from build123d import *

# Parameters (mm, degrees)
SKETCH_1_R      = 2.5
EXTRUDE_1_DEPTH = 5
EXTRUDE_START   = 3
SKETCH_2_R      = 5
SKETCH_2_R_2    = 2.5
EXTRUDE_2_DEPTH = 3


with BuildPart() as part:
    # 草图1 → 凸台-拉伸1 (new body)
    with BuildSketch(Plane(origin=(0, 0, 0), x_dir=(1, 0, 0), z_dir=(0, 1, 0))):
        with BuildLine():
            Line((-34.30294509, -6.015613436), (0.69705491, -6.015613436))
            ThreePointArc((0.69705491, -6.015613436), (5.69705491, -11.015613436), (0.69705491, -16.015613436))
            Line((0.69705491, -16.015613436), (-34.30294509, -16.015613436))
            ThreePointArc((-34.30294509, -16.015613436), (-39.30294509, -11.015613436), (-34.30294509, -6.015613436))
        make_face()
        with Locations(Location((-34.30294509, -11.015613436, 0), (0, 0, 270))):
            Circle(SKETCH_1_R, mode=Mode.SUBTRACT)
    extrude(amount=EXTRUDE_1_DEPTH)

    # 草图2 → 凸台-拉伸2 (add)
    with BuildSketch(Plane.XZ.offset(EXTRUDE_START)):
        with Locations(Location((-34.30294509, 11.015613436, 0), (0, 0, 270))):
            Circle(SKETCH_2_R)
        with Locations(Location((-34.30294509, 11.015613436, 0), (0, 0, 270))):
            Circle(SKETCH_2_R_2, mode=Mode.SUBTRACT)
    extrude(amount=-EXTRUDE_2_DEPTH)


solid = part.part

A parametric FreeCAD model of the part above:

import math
import FreeCAD as App
import Part
import Sketcher
from FreeCAD import Vector

doc = App.newDocument("Part")
body = doc.addObject("PartDesign::Body", "Body")

# Sketch on XZ plane
sketch1 = body.newObject("Sketcher::SketchObject", "Sketch")
sketch1.AttachmentSupport = (doc.getObject("XZ_Plane"), [""])
sketch1.MapMode = "FlatFace"
sketch1.addGeometry(Part.LineSegment(Vector(0.7, 6, 0), Vector(-34.3, 6, 0)), False)
sketch1.addGeometry(Part.ArcOfCircle(Part.Circle(Vector(-34.3, 11, 0), Vector(0, 0, 1), 5), math.radians(90), math.radians(270)), False)
sketch1.addGeometry(Part.LineSegment(Vector(-34.3, 16, 0), Vector(0.7, 16, 0)), False)
sketch1.addGeometry(Part.ArcOfCircle(Part.Circle(Vector(0.7, 11, 0), Vector(0, 0, 1), 5), math.radians(-90), math.radians(90)), False)
sketch1.addGeometry(Part.Circle(Vector(-34.3, 11, 0), Vector(0, 0, 1), 2.5), False)
sketch1.addConstraint(Sketcher.Constraint("Tangent", 0, 2, 1, 2))
sketch1.addConstraint(Sketcher.Constraint("Tangent", 1, 1, 2, 1))
sketch1.addConstraint(Sketcher.Constraint("Tangent", 2, 2, 3, 2))
sketch1.addConstraint(Sketcher.Constraint("Tangent", 3, 1, 0, 1))
sketch1.addConstraint(Sketcher.Constraint("Horizontal", 0))
sketch1.addConstraint(Sketcher.Constraint("Horizontal", 2))
sketch1.addConstraint(Sketcher.Constraint("Coincident", 4, 3, 1, 3))
sketch1.addConstraint(Sketcher.Constraint("Diameter", 4, 5.0))
sketch1.addConstraint(Sketcher.Constraint("Radius", 1, 5.0))
sketch1.addConstraint(Sketcher.Constraint("DistanceX", 0, 2, 0, 1, 35.0))
sketch1.addConstraint(Sketcher.Constraint("DistanceX", 1, 3, -1, 1, 34.302945))
sketch1.addConstraint(Sketcher.Constraint("DistanceY", -1, 1, 1, 3, 11.015613))
pad1 = body.newObject("PartDesign::Pad", "Pad")
pad1.Profile = sketch1
pad1.Length = 5
pad1.Reversed = True

# Sketch on XZ plane
sketch2 = body.newObject("Sketcher::SketchObject", "Sketch001")
sketch2.AttachmentSupport = (doc.getObject("XZ_Plane"), [""])
sketch2.MapMode = "FlatFace"
sketch2.AttachmentOffset = App.Placement(Vector(0, 0, 3), App.Rotation())
sketch2.addGeometry(Part.Circle(Vector(-34.3, 11, 0), Vector(0, 0, 1), 5), False)
sketch2.addGeometry(Part.Circle(Vector(-34.3, 11, 0), Vector(0, 0, 1), 2.5), False)
sketch2.addConstraint(Sketcher.Constraint("Coincident", 1, 3, 0, 3))
sketch2.addConstraint(Sketcher.Constraint("Diameter", 0, 10.0))
sketch2.addConstraint(Sketcher.Constraint("Diameter", 1, 5.0))
sketch2.addConstraint(Sketcher.Constraint("DistanceX", 0, 3, -1, 1, 34.302945))
sketch2.addConstraint(Sketcher.Constraint("DistanceY", -1, 1, 0, 3, 11.015613))
pad2 = body.newObject("PartDesign::Pad", "Pad001")
pad2.Profile = sketch2
pad2.Length = 3
pad2.Reversed = True

doc.recompute()
